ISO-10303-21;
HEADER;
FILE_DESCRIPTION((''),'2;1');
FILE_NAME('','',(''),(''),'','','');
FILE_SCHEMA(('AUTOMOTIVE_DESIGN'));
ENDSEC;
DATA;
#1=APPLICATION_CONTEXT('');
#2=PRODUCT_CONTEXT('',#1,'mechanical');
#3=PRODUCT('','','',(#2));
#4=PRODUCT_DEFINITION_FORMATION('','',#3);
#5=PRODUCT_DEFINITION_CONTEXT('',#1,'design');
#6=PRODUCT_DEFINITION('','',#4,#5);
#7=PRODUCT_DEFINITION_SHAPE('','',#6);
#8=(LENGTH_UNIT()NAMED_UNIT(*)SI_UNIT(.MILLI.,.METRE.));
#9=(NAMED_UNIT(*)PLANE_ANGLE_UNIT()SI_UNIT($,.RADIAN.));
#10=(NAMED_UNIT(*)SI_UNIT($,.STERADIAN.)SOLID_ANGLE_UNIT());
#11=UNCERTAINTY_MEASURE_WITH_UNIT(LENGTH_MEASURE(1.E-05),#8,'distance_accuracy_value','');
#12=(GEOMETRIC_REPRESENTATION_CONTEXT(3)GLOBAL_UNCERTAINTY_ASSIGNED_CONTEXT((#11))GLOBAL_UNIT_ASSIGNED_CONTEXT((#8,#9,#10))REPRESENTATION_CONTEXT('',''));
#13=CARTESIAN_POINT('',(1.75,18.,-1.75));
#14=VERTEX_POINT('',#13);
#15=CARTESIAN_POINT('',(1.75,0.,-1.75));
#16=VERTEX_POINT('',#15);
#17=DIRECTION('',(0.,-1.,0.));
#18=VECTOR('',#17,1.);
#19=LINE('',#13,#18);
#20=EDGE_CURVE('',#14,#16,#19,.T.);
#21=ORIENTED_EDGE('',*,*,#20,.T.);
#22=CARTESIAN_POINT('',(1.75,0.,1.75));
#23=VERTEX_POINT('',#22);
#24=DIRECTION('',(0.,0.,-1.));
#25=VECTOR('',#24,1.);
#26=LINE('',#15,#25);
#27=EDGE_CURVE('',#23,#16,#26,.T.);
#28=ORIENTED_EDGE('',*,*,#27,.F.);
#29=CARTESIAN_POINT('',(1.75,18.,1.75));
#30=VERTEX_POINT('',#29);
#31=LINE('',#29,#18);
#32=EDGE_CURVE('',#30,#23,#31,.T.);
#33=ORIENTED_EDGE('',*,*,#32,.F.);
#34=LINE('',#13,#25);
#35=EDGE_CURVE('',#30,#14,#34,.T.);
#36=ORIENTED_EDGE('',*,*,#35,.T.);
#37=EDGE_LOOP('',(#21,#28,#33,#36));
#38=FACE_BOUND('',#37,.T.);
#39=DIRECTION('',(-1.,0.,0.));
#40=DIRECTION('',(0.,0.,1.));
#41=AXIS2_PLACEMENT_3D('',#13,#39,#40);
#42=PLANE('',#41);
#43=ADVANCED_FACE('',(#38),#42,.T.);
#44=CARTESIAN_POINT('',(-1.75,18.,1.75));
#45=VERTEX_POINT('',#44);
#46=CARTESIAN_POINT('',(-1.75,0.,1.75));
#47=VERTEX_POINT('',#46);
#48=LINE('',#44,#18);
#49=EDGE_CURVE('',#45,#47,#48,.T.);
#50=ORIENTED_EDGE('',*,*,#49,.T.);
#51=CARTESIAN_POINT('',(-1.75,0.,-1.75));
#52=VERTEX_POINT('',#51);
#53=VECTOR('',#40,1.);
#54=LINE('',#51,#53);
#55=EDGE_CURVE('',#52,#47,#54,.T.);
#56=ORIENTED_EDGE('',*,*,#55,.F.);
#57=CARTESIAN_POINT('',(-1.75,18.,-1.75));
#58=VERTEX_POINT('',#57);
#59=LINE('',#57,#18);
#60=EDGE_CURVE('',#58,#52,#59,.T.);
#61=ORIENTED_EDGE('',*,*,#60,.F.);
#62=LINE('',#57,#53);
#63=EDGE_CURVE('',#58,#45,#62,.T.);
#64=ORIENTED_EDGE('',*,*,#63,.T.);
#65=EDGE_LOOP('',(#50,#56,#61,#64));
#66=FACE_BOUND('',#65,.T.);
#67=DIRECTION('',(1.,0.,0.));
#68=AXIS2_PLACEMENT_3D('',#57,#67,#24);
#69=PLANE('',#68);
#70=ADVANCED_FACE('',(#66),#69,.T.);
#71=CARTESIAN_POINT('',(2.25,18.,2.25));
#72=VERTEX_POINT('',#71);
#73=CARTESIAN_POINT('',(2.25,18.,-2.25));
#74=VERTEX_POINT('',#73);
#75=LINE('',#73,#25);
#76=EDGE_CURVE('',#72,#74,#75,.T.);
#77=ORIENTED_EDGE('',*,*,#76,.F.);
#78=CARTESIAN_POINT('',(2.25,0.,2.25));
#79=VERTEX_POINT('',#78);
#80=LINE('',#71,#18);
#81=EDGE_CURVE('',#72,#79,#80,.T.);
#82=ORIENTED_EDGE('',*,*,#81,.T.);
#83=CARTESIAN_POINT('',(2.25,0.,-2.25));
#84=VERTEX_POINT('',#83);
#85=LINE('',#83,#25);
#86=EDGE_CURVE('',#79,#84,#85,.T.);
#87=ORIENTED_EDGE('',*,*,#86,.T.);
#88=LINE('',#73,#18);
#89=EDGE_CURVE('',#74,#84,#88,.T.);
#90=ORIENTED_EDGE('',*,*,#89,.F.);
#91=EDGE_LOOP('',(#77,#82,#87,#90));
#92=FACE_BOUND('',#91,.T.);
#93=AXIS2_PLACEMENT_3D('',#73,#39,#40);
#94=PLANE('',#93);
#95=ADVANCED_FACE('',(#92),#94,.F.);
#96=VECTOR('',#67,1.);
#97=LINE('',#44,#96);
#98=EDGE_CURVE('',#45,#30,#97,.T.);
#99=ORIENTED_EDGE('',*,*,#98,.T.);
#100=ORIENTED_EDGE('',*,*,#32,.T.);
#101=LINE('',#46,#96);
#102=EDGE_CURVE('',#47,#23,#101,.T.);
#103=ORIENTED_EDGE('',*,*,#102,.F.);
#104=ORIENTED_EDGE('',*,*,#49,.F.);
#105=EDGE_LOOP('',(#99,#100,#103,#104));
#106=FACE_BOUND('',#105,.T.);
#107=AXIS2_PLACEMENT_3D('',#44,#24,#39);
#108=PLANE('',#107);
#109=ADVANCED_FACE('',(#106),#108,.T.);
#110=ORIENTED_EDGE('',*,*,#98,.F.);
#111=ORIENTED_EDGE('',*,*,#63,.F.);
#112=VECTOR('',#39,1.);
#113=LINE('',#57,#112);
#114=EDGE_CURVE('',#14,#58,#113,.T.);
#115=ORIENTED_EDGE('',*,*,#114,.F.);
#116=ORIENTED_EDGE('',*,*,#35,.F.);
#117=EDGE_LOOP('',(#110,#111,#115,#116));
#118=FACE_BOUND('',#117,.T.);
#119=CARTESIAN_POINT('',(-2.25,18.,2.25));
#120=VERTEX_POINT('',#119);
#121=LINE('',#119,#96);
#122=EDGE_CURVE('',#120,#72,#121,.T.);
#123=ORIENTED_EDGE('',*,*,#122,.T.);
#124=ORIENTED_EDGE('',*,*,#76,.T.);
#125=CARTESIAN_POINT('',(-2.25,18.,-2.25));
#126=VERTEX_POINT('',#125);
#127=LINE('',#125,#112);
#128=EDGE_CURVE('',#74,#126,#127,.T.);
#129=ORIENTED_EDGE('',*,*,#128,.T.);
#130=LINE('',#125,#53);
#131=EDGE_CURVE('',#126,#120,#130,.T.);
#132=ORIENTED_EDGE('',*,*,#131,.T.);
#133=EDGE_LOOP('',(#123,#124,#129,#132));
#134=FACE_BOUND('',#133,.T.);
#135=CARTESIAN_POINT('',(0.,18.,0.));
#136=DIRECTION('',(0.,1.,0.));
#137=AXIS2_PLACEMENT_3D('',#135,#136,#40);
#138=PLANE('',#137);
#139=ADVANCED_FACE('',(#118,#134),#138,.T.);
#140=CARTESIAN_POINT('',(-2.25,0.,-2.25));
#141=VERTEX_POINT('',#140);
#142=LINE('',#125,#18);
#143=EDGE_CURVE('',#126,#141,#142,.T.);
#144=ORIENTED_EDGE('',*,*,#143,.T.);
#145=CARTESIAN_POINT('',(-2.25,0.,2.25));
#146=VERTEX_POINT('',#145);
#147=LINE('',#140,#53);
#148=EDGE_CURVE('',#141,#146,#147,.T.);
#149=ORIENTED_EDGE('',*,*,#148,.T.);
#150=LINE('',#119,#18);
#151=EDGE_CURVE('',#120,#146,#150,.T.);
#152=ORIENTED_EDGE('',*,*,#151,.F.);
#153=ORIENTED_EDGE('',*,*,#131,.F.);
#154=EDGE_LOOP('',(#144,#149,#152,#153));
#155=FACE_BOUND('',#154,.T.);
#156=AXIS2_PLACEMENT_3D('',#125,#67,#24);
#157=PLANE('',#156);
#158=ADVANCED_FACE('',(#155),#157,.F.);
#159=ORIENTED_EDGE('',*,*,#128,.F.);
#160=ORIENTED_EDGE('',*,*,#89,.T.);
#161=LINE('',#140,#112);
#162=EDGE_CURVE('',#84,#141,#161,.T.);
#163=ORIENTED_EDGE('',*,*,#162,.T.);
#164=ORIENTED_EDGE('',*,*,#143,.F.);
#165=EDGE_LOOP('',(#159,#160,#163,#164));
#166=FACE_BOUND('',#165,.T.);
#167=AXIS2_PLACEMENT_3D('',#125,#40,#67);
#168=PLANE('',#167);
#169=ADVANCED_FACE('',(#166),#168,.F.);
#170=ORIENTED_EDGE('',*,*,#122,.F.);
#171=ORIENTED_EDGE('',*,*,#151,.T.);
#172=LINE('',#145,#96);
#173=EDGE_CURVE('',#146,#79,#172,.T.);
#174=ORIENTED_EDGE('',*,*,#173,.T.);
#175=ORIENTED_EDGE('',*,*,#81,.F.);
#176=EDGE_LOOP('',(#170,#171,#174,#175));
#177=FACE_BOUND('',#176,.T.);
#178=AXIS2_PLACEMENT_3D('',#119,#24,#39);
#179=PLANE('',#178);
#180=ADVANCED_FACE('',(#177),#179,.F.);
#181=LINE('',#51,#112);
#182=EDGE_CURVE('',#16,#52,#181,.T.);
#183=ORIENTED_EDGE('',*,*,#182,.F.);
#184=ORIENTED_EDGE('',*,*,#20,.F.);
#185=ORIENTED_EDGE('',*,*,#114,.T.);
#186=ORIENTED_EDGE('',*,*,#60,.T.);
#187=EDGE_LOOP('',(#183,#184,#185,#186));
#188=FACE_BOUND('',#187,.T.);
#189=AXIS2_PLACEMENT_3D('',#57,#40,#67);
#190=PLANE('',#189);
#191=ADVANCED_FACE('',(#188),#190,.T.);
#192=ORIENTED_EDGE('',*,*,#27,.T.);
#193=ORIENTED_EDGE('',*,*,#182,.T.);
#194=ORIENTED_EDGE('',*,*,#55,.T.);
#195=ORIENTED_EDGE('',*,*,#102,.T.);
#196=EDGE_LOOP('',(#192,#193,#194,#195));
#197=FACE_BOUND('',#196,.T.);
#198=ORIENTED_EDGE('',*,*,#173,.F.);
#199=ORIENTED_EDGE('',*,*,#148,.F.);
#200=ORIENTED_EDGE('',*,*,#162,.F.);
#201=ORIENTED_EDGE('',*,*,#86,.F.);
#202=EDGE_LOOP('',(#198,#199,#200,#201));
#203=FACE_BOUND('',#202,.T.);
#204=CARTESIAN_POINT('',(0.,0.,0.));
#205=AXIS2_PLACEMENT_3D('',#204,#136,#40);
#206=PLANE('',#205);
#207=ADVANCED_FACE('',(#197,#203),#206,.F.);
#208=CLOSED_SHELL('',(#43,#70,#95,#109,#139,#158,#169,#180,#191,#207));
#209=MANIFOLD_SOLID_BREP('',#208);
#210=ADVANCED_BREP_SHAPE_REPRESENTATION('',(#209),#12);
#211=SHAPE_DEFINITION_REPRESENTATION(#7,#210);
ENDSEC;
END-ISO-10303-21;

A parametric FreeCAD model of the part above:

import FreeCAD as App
import Part
import Sketcher
Q = App.Units.Quantity


def add_polygon(sketch, points):
    """Adds a closed chain of lines whose ends are joined by coincident constraints."""
    first, n = sketch.GeometryCount, len(points)
    for a, b in zip(points, points[1:] + points[:1]):
        sketch.addGeometry(Part.LineSegment(App.Vector(*a, 0), App.Vector(*b, 0)), False)
    for i in range(n):
        sketch.addConstraint(Sketcher.Constraint("Coincident", first + i, 2, first + (i + 1) % n, 1))

doc = App.newDocument("Part")
body = doc.addObject("PartDesign::Body", "Body")

# Sketch on XZ plane
sketch1 = body.newObject("Sketcher::SketchObject", "Sketch")
sketch1.AttachmentSupport = (doc.getObject("XZ_Plane"), [""])
sketch1.MapMode = "FlatFace"
add_polygon(sketch1, [(-2.25, -2.25), (-2.25, 2.25), (2.25, 2.25), (2.25, -2.25)])  # lines 0-3
add_polygon(sketch1, [(1.75, 1.75), (-1.75, 1.75), (-1.75, -1.75), (1.75, -1.75)])  # lines 4-7
sketch1.addConstraint([
    Sketcher.Constraint("Vertical", 0),
    Sketcher.Constraint("Horizontal", 1),
    Sketcher.Constraint("Vertical", 2),
    Sketcher.Constraint("Horizontal", 3),
    Sketcher.Constraint("Horizontal", 4),
    Sketcher.Constraint("Vertical", 5),
    Sketcher.Constraint("Horizontal", 6),
    Sketcher.Constraint("Vertical", 7),
    Sketcher.Constraint("Symmetric", 0, 2, 2, 2, -1, 1),
    Sketcher.Constraint("Symmetric", 4, 2, 6, 2, -1, 1),
    Sketcher.Constraint("Equal", 3, 0),
    Sketcher.Constraint("Equal", 6, 5),
    Sketcher.Constraint("DistanceX", 1, 1, 1, 2, Q("4.5 mm")),
    Sketcher.Constraint("DistanceX", 4, 2, 4, 1, Q("3.5 mm")),
])
pad1 = body.newObject("PartDesign::Pad", "Pad")
pad1.Profile = sketch1
pad1.Length = 18
pad1.Reversed = True

doc.recompute()
